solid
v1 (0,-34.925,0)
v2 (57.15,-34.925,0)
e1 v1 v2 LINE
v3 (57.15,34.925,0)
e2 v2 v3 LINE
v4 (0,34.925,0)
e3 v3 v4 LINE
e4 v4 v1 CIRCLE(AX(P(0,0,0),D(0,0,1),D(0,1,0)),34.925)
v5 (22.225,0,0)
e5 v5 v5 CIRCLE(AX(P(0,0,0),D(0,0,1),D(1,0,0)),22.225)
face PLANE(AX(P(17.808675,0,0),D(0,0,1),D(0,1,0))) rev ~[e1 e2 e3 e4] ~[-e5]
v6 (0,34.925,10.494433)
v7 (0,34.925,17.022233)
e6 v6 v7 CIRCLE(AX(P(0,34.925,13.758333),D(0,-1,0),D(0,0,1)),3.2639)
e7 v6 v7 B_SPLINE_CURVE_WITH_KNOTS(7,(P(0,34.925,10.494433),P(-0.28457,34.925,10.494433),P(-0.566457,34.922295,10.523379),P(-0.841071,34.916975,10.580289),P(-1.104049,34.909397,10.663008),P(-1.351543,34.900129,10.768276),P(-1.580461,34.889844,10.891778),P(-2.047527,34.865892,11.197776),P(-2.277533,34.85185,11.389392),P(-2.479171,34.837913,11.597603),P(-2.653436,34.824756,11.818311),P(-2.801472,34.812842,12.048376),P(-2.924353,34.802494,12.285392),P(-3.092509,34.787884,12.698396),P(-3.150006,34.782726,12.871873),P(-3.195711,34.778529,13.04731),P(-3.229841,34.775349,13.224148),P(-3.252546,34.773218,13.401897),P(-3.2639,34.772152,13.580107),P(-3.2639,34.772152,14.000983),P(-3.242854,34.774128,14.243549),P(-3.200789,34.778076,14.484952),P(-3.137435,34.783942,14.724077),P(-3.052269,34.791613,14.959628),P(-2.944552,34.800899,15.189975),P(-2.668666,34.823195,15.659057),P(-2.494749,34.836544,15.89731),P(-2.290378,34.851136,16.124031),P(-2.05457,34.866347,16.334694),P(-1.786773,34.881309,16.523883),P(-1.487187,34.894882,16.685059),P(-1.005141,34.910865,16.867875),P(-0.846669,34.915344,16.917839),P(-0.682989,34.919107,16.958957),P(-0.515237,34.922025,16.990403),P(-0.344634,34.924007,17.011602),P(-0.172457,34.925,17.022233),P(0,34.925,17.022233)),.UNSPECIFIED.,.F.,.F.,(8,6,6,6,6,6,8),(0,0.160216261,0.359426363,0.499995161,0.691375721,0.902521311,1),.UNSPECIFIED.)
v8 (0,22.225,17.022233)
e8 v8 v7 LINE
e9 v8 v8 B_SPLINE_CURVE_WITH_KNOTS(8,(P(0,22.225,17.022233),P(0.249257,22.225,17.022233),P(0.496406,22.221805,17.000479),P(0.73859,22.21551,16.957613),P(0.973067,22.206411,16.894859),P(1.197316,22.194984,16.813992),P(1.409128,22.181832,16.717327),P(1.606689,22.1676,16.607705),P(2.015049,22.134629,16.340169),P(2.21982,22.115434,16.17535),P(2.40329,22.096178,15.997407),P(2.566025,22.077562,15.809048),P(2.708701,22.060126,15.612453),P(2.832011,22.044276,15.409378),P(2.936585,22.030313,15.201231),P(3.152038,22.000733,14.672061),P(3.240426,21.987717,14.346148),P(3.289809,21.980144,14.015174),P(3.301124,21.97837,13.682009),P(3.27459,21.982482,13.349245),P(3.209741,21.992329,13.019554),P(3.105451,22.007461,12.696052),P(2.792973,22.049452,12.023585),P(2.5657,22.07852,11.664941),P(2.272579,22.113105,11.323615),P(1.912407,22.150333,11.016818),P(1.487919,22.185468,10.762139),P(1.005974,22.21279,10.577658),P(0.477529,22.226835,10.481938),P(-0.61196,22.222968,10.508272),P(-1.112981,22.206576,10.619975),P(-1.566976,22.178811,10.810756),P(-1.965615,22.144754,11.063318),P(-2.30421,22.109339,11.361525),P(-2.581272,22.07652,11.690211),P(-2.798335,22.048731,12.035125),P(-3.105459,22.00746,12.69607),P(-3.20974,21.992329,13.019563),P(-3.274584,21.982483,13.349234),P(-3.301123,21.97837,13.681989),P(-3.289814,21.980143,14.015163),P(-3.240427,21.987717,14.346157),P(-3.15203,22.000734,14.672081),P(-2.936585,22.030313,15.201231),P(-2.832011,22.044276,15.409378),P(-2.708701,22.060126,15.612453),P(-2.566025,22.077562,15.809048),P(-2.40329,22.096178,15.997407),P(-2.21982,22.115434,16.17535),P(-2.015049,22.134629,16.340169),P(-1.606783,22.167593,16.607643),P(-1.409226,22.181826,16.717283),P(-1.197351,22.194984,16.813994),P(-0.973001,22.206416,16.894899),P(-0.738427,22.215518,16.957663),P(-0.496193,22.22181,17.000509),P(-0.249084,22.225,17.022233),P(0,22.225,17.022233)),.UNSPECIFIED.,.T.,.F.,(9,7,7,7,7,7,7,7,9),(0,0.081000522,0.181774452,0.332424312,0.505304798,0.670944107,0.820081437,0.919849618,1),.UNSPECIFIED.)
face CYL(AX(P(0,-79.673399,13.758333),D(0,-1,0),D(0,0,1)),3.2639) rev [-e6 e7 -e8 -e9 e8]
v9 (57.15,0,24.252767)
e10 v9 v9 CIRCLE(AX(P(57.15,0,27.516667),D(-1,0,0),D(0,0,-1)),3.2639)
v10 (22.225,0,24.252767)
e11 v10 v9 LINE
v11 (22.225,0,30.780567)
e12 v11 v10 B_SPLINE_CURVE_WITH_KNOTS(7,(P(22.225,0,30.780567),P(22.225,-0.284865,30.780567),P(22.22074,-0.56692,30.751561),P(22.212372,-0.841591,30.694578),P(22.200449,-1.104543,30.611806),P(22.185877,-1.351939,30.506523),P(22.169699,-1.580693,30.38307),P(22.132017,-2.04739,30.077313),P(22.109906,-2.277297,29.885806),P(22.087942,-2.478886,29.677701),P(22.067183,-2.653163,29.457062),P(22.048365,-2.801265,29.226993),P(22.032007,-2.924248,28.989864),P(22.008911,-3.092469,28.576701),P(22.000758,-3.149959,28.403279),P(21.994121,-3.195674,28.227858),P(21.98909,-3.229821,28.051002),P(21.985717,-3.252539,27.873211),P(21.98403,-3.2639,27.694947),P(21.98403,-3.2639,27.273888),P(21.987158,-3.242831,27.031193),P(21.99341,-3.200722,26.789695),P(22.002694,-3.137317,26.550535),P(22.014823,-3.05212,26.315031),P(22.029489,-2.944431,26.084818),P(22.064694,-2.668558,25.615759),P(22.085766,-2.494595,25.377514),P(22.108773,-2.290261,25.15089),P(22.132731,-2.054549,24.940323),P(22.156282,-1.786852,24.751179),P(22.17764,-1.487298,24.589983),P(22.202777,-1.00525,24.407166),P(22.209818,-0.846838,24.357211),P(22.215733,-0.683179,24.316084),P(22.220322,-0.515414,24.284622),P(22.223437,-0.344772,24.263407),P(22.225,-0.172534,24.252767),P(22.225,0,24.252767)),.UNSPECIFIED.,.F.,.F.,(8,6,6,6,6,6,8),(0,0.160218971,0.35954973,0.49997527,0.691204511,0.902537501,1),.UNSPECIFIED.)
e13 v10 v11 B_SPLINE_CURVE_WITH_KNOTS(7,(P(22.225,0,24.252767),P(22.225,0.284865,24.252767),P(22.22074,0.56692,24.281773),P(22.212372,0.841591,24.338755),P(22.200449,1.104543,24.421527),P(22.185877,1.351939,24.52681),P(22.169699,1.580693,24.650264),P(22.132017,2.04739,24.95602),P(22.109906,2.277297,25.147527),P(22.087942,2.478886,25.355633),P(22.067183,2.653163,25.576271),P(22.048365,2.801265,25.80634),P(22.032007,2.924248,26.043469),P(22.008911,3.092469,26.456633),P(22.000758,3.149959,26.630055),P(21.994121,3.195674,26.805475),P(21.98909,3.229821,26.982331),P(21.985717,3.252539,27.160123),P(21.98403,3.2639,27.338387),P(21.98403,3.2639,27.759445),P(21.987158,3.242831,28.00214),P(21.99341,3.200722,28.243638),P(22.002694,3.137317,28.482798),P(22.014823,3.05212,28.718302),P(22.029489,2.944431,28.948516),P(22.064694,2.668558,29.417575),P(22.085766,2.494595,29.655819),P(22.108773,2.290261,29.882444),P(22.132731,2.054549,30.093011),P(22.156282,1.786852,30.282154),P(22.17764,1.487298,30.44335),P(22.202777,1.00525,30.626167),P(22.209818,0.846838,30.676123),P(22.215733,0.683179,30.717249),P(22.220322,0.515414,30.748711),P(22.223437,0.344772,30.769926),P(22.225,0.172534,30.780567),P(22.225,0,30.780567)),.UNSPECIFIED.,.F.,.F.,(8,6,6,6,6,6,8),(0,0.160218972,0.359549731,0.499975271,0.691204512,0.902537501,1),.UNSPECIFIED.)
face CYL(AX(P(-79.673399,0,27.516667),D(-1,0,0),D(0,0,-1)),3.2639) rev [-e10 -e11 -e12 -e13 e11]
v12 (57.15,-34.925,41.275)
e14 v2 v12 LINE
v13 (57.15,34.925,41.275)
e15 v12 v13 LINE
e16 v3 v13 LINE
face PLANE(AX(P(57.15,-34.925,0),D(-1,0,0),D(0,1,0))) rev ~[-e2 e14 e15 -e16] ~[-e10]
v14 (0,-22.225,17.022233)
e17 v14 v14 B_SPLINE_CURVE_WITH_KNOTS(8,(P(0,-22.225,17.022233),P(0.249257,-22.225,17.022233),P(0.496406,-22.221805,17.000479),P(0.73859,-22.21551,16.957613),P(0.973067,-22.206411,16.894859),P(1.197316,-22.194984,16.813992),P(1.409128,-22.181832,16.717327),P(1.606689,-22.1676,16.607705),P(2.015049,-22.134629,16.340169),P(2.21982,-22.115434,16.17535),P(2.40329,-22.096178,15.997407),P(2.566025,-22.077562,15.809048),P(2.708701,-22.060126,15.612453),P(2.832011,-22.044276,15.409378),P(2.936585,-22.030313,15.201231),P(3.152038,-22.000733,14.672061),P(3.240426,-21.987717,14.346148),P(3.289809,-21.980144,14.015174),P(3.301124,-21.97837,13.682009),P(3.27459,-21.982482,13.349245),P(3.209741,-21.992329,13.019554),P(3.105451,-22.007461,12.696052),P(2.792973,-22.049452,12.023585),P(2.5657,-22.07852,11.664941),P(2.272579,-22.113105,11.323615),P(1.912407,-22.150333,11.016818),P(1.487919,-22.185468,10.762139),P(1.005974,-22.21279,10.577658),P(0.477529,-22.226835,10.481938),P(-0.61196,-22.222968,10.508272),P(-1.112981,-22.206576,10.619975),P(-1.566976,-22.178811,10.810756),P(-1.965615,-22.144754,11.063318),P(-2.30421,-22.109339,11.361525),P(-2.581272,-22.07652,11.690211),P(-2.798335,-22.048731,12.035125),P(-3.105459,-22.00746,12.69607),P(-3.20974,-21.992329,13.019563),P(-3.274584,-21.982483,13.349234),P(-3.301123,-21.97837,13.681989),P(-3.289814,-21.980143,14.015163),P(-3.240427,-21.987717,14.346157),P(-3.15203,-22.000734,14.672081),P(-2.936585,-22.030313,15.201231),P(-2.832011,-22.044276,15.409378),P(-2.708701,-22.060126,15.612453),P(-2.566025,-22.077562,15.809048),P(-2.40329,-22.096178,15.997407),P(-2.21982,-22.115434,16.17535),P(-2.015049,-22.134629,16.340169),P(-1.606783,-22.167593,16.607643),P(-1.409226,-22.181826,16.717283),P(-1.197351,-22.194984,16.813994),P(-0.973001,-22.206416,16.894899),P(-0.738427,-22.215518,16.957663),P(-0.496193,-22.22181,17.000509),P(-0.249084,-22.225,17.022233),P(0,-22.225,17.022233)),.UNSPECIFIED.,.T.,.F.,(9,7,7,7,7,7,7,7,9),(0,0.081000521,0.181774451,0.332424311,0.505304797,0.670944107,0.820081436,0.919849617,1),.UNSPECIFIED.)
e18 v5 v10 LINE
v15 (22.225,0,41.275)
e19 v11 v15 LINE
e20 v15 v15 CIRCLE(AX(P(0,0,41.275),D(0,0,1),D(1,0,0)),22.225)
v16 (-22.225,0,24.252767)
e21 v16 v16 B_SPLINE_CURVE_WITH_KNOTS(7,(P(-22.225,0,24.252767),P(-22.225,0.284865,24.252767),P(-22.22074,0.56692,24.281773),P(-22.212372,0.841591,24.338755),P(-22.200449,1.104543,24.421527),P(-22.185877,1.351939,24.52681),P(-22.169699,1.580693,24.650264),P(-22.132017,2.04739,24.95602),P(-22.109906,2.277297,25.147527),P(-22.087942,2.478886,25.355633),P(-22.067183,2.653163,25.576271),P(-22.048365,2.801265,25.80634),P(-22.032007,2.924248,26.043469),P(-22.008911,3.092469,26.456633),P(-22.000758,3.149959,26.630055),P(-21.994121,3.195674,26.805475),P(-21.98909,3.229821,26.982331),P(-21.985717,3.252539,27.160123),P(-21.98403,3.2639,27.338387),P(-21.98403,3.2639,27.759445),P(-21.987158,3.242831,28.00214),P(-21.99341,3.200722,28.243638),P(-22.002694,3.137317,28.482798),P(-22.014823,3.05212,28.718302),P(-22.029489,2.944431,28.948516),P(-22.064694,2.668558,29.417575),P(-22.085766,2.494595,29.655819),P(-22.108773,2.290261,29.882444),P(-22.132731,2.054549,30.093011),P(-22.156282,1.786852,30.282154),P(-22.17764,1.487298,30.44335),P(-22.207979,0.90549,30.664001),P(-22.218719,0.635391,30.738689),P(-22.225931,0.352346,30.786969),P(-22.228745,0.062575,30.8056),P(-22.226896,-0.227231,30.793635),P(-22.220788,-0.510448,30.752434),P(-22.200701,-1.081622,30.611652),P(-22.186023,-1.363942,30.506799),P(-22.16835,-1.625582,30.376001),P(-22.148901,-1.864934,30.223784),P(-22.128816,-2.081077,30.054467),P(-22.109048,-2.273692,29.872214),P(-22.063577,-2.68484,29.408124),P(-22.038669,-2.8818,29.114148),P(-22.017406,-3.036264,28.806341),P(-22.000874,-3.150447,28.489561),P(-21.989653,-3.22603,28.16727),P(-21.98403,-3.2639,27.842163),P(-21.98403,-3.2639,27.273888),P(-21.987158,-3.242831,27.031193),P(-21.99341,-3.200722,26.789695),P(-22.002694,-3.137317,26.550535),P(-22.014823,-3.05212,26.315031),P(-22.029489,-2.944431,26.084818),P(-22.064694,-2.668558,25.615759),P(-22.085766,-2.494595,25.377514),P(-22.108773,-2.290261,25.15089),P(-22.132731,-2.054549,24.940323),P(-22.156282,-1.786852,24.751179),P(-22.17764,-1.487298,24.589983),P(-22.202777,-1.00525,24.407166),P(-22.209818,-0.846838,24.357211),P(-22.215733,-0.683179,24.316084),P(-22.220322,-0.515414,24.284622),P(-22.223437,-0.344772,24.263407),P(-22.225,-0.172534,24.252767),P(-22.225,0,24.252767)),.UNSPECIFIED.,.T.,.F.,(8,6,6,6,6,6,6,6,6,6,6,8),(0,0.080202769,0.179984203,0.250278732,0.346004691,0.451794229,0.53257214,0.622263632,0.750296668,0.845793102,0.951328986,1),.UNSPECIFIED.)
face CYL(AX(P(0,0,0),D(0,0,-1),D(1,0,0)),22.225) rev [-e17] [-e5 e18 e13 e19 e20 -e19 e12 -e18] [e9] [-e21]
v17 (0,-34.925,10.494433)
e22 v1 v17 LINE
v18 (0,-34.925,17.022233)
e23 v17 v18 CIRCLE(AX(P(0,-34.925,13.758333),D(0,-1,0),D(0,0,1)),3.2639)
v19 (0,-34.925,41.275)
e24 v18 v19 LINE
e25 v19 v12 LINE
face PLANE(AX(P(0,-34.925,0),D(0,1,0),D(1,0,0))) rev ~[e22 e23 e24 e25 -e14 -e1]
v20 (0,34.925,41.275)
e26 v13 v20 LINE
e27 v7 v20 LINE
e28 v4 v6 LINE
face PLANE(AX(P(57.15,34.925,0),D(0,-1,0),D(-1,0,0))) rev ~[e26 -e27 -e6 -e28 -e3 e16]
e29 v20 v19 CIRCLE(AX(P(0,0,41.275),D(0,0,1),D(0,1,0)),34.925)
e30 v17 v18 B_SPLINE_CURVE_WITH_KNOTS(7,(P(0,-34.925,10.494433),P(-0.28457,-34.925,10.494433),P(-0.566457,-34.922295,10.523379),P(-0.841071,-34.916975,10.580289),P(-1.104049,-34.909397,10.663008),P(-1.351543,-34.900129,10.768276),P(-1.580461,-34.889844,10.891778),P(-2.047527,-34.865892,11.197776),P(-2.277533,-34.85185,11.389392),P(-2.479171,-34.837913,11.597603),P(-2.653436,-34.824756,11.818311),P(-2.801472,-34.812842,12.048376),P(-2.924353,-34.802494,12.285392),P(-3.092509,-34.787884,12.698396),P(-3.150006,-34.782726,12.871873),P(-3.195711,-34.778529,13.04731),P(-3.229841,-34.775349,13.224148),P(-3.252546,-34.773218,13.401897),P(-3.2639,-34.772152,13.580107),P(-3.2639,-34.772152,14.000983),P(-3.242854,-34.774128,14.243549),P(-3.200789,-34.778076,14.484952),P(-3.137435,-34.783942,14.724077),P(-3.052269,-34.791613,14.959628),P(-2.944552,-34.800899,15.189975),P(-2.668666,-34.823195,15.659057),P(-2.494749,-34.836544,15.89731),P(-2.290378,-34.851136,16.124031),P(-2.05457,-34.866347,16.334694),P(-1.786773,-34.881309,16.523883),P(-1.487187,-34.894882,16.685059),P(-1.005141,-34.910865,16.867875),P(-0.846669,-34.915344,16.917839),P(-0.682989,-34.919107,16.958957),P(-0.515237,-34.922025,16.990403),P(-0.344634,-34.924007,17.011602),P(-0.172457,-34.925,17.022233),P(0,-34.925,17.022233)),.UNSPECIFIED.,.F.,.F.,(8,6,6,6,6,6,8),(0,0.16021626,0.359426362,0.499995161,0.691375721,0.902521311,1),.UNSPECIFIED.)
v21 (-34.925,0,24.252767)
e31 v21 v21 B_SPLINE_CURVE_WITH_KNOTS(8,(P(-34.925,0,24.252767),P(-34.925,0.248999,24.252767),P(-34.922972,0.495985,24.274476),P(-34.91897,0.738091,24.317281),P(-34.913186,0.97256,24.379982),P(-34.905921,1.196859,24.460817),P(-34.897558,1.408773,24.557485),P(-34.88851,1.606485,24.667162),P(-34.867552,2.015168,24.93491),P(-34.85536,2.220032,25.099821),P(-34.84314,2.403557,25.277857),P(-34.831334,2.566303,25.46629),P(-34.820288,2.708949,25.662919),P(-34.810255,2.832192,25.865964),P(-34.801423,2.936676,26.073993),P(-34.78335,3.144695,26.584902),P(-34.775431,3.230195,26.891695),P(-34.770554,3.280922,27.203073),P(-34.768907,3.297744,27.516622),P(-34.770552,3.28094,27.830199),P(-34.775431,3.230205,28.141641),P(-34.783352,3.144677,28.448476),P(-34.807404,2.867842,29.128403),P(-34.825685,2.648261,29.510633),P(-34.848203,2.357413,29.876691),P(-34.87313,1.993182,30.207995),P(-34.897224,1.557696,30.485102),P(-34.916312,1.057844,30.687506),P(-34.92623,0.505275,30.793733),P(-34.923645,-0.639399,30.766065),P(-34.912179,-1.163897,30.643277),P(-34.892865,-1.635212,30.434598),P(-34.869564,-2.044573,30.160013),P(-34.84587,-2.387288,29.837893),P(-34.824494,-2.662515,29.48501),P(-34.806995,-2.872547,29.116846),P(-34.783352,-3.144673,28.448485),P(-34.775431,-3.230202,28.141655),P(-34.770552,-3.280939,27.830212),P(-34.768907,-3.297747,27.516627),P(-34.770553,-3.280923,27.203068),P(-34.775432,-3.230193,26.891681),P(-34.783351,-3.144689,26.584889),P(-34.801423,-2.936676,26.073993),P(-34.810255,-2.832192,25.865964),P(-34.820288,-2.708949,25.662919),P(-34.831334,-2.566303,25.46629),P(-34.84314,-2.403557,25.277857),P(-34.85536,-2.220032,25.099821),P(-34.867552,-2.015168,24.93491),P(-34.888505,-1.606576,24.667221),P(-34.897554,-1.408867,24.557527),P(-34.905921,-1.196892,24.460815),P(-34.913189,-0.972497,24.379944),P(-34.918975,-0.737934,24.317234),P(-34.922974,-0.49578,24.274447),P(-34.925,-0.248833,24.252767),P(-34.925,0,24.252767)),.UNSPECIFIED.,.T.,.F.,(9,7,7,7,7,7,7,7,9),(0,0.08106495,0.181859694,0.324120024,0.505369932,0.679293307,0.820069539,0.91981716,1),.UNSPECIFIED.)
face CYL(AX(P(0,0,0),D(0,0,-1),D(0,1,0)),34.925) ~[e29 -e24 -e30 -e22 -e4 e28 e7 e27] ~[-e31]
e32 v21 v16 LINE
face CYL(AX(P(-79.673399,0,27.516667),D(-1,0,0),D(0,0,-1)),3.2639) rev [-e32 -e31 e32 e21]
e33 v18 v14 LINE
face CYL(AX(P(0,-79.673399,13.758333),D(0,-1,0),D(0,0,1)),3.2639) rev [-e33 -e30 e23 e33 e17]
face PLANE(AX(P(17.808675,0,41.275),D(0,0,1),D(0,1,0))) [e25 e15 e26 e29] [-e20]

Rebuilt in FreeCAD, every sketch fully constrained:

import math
import FreeCAD as App
import Part
import Sketcher
from FreeCAD import Vector
Q = App.Units.Quantity

doc = App.newDocument("Part")
body = doc.addObject("PartDesign::Body", "Body")

# Sketch on XY plane
sketch1 = body.newObject("Sketcher::SketchObject", "Sketch")
sketch1.AttachmentSupport = (doc.getObject("XY_Plane"), [""])
sketch1.MapMode = "FlatFace"
sketch1.addGeometry(Part.LineSegment(Vector(0, -34.925, 0), Vector(57.15, -34.925, 0)), False)
sketch1.addGeometry(Part.LineSegment(Vector(57.15, -34.925, 0), Vector(57.15, 34.925, 0)), False)
sketch1.addGeometry(Part.LineSegment(Vector(57.15, 34.925, 0), Vector(0, 34.925, 0)), False)
sketch1.addGeometry(Part.ArcOfCircle(Part.Circle(Vector(0, 0, 0), Vector(0, 0, 1), 34.925), math.radians(90), math.radians(270)), False)
sketch1.addGeometry(Part.Circle(Vector(0, 0, 0), Vector(0, 0, 1), 22.225), False)
sketch1.addConstraint(Sketcher.Constraint("Coincident", 0, 2, 1, 1))
sketch1.addConstraint(Sketcher.Constraint("Coincident", 1, 2, 2, 1))
sketch1.addConstraint(Sketcher.Constraint("Tangent", 2, 2, 3, 1))
sketch1.addConstraint(Sketcher.Constraint("Tangent", 3, 2, 0, 1))
sketch1.addConstraint(Sketcher.Constraint("Horizontal", 0))
sketch1.addConstraint(Sketcher.Constraint("Vertical", 1))
sketch1.addConstraint(Sketcher.Constraint("Horizontal", 2))
sketch1.addConstraint(Sketcher.Constraint("Coincident", 3, 3, -1, 1))
sketch1.addConstraint(Sketcher.Constraint("Coincident", 4, 3, -1, 1))
sketch1.addConstraint(Sketcher.Constraint("Diameter", 4, Q("1.75 in")))
sketch1.addConstraint(Sketcher.Constraint("Radius", 3, Q("1.375 in")))
sketch1.addConstraint(Sketcher.Constraint("DistanceX", 0, 1, 0, 2, Q("2.25 in")))
pad1 = body.newObject("PartDesign::Pad", "Pad")
pad1.Profile = sketch1
pad1.Length = Q("1.625 in")

# Sketch on YZ plane
sketch2 = body.newObject("Sketcher::SketchObject", "Sketch001")
sketch2.AttachmentSupport = (doc.getObject("YZ_Plane"), [""])
sketch2.MapMode = "FlatFace"
sketch2.addGeometry(Part.Circle(Vector(0, 27.516667, 0), Vector(0, 0, 1), 3.2639), False)
sketch2.addConstraint(Sketcher.Constraint("PointOnObject", 0, 3, -2))
sketch2.addConstraint(Sketcher.Constraint("Diameter", 0, Q("0.257 in")))
sketch2.addConstraint(Sketcher.Constraint("DistanceY", -1, 1, 0, 3, Q("27.516667 mm")))
pocket1 = body.newObject("PartDesign::Pocket", "Pocket")
pocket1.Profile = sketch2
pocket1.Type = "ThroughAll"
pocket1.Midplane = True

# Sketch on XZ plane
sketch3 = body.newObject("Sketcher::SketchObject", "Sketch002")
sketch3.AttachmentSupport = (doc.getObject("XZ_Plane"), [""])
sketch3.MapMode = "FlatFace"
sketch3.addGeometry(Part.Circle(Vector(0, 13.758333, 0), Vector(0, 0, 1), 3.2639), False)
sketch3.addConstraint(Sketcher.Constraint("PointOnObject", 0, 3, -2))
sketch3.addConstraint(Sketcher.Constraint("Diameter", 0, Q("0.257 in")))
sketch3.addConstraint(Sketcher.Constraint("DistanceY", -1, 1, 0, 3, Q("13.758333 mm")))
pocket2 = body.newObject("PartDesign::Pocket", "Pocket001")
pocket2.Profile = sketch3
pocket2.Type = "ThroughAll"
pocket2.Midplane = True

doc.recompute()
